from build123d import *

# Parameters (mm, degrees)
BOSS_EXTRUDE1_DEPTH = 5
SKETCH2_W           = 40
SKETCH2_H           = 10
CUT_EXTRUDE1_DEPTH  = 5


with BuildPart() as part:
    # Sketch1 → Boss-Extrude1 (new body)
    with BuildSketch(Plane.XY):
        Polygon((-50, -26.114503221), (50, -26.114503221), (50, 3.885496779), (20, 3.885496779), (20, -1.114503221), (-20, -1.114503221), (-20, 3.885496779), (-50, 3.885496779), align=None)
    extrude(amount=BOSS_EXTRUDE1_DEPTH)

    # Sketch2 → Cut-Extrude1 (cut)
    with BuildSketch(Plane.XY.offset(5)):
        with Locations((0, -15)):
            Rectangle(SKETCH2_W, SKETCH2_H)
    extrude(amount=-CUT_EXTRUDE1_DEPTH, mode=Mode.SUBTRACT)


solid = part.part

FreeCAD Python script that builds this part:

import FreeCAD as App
import Part
import Sketcher

V = App.Vector

doc = App.newDocument("Part")
body = doc.addObject("PartDesign::Body", "Body")

sketch1 = body.newObject("Sketcher::SketchObject", "Sketch")
sketch1.AttachmentSupport = (doc.getObject("XY_Plane"), [""])
sketch1.MapMode = "FlatFace"
sketch1.addGeometry([
    Part.LineSegment(V(-50, -26, 0), V(50, -26, 0)),
    Part.LineSegment(V(50, -26, 0), V(50, 4, 0)),
    Part.LineSegment(V(50, 4, 0), V(20, 4, 0)),
    Part.LineSegment(V(20, 4, 0), V(20, -1, 0)),
    Part.LineSegment(V(20, -1, 0), V(-20, -1, 0)),
    Part.LineSegment(V(-20, -1, 0), V(-20, 4, 0)),
    Part.LineSegment(V(-20, 4, 0), V(-50, 4, 0)),
    Part.LineSegment(V(-50, 4, 0), V(-50, -26, 0)),
], False)
sketch1.addConstraint([
    Sketcher.Constraint("Coincident", 0, 2, 1, 1),
    Sketcher.Constraint("Coincident", 1, 2, 2, 1),
    Sketcher.Constraint("Coincident", 2, 2, 3, 1),
    Sketcher.Constraint("Coincident", 3, 2, 4, 1),
    Sketcher.Constraint("Coincident", 4, 2, 5, 1),
    Sketcher.Constraint("Coincident", 5, 2, 6, 1),
    Sketcher.Constraint("Coincident", 6, 2, 7, 1),
    Sketcher.Constraint("Coincident", 7, 2, 0, 1),
    Sketcher.Constraint("Horizontal", 0),
    Sketcher.Constraint("Vertical", 1),
    Sketcher.Constraint("Horizontal", 2),
    Sketcher.Constraint("Vertical", 3),
    Sketcher.Constraint("Horizontal", 4),
    Sketcher.Constraint("Vertical", 5),
    Sketcher.Constraint("Horizontal", 6),
    Sketcher.Constraint("Vertical", 7),
    Sketcher.Constraint("Symmetric", 2, 2, 5, 2, -2),
    Sketcher.Constraint("Equal", 2, 6),
    Sketcher.Constraint("Equal", 6, 1),
    Sketcher.Constraint("DistanceX", 0, 1, 0, 2, 100.0),
    Sketcher.Constraint("DistanceX", 2, 2, 2, 1, 30.0),
    Sketcher.Constraint("DistanceY", 3, 2, 3, 1, 5.0),
    Sketcher.Constraint("DistanceY", 0, 2, -1, 1, 26.114503),
])
pad1 = body.newObject("PartDesign::Pad", "Pad")
pad1.Profile = sketch1
pad1.Length = 5

sketch2 = body.newObject("Sketcher::SketchObject", "Sketch001")
sketch2.AttachmentSupport = (doc.getObject("XY_Plane"), [""])
sketch2.MapMode = "FlatFace"
sketch2.AttachmentOffset = App.Placement(V(0, 0, 5), App.Rotation())
sketch2.addGeometry([
    Part.LineSegment(V(-20, -10, 0), V(-20, -20, 0)),
    Part.LineSegment(V(-20, -20, 0), V(20, -20, 0)),
    Part.LineSegment(V(20, -20, 0), V(20, -10, 0)),
    Part.LineSegment(V(20, -10, 0), V(-20, -10, 0)),
], False)
sketch2.addConstraint([
    Sketcher.Constraint("Coincident", 0, 2, 1, 1),
    Sketcher.Constraint("Coincident", 1, 2, 2, 1),
    Sketcher.Constraint("Coincident", 2, 2, 3, 1),
    Sketcher.Constraint("Coincident", 3, 2, 0, 1),
    Sketcher.Constraint("Vertical", 0),
    Sketcher.Constraint("Horizontal", 1),
    Sketcher.Constraint("Vertical", 2),
    Sketcher.Constraint("Horizontal", 3),
    Sketcher.Constraint("DistanceX", 1, 1, 1, 2, 40.0),
    Sketcher.Constraint("DistanceY", 0, 2, 0, 1, 10.0),
    Sketcher.Constraint("DistanceX", 0, 2, -1, 1, 20.0),
    Sketcher.Constraint("DistanceY", 0, 2, -1, 1, 20.0),
])
pocket1 = body.newObject("PartDesign::Pocket", "Pocket")
pocket1.Profile = sketch2
pocket1.Length = 5

doc.recompute()
